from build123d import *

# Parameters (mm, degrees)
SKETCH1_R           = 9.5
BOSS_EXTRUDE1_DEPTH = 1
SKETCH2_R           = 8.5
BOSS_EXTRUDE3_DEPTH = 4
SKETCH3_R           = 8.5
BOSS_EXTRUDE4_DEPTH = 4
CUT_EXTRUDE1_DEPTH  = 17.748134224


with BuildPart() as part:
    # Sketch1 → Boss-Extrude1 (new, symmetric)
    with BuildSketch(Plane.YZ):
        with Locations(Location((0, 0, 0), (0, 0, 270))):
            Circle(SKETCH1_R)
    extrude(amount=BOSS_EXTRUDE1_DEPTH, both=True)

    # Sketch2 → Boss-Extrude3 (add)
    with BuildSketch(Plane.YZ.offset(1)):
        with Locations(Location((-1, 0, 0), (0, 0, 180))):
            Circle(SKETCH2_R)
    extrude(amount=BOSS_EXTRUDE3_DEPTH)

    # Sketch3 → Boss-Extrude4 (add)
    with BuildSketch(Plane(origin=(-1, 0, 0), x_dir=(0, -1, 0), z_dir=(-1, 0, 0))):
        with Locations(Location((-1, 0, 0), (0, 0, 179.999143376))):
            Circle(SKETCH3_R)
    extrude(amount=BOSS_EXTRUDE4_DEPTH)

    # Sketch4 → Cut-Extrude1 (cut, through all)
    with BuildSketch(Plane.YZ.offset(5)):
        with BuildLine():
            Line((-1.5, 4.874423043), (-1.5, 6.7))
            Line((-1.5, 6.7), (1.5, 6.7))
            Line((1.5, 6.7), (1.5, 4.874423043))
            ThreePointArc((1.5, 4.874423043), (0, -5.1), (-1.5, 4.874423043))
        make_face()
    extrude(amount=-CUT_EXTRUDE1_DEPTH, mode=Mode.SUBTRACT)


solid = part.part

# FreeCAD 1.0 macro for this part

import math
import FreeCAD as App
import Part
import Sketcher

doc = App.newDocument("Part")
body = doc.addObject("PartDesign::Body", "Body")

sketch1 = doc.addObject("Sketcher::SketchObject", "Sketch")
body.addObject(sketch1)
sketch1.AttachmentSupport = (doc.YZ_Plane, [""])
sketch1.MapMode = "FlatFace"
sketch1.addGeometry(Part.Circle(App.Vector(0, 0, 0), App.Vector(0, 0, 1), 9.5), False)
sketch1.addConstraint([
    Sketcher.Constraint("Coincident", 0, 3, -1, 1),
    Sketcher.Constraint("Diameter", 0, 19.0),
])
pad1 = doc.addObject("PartDesign::Pad", "Pad")
body.addObject(pad1)
pad1.Profile = sketch1
pad1.Length = 2
pad1.Midplane = True

sketch2 = doc.addObject("Sketcher::SketchObject", "Sketch001")
body.addObject(sketch2)
sketch2.AttachmentSupport = (doc.YZ_Plane, [""])
sketch2.MapMode = "FlatFace"
sketch2.AttachmentOffset = App.Placement(App.Vector(0, 0, 1), App.Rotation())
sketch2.addGeometry(Part.Circle(App.Vector(-1, 0, 0), App.Vector(0, 0, 1), 8.5), False)
sketch2.addConstraint([
    Sketcher.Constraint("PointOnObject", 0, 3, -1),
    Sketcher.Constraint("Diameter", 0, 17.0),
    Sketcher.Constraint("DistanceX", 0, 3, -1, 1, 1.0),
])
pad2 = doc.addObject("PartDesign::Pad", "Pad001")
body.addObject(pad2)
pad2.Profile = sketch2
pad2.Length = 4

sketch3 = doc.addObject("Sketcher::SketchObject", "Sketch002")
body.addObject(sketch3)
sketch3.AttachmentSupport = (doc.YZ_Plane, [""])
sketch3.MapMode = "FlatFace"
sketch3.AttachmentOffset = App.Placement(App.Vector(0, 0, -1), App.Rotation())
sketch3.addGeometry(Part.Circle(App.Vector(1, 0, 0), App.Vector(0, 0, 1), 8.5), False)
sketch3.addConstraint([
    Sketcher.Constraint("PointOnObject", 0, 3, -1),
    Sketcher.Constraint("Diameter", 0, 17.0),
    Sketcher.Constraint("DistanceX", -1, 1, 0, 3, 1.0),
])
pad3 = doc.addObject("PartDesign::Pad", "Pad002")
body.addObject(pad3)
pad3.Profile = sketch3
pad3.Length = 4
pad3.Reversed = True

sketch4 = doc.addObject("Sketcher::SketchObject", "Sketch003")
body.addObject(sketch4)
sketch4.AttachmentSupport = (doc.YZ_Plane, [""])
sketch4.MapMode = "FlatFace"
sketch4.AttachmentOffset = App.Placement(App.Vector(0, 0, 5), App.Rotation())
sketch4.addGeometry([
    Part.LineSegment(App.Vector(-1.5, 6.7, 0), App.Vector(-1.5, 4.874423, 0)),
    Part.ArcOfCircle(Part.Circle(App.Vector(0, 0, 0), App.Vector(0, 0, 1), 5.1), math.radians(107.104635), math.radians(432.895365)),
    Part.LineSegment(App.Vector(1.5, 4.874423, 0), App.Vector(1.5, 6.7, 0)),
    Part.LineSegment(App.Vector(1.5, 6.7, 0), App.Vector(-1.5, 6.7, 0)),
], False)
sketch4.addConstraint([
    Sketcher.Constraint("Coincident", 0, 2, 1, 1),
    Sketcher.Constraint("Coincident", 1, 2, 2, 1),
    Sketcher.Constraint("Coincident", 2, 2, 3, 1),
    Sketcher.Constraint("Coincident", 3, 2, 0, 1),
    Sketcher.Constraint("Vertical", 0),
    Sketcher.Constraint("Vertical", 2),
    Sketcher.Constraint("Horizontal", 3),
    Sketcher.Constraint("Coincident", 1, 3, -1, 1),
    Sketcher.Constraint("Horizontal", 0, 2, 1, 2),
    Sketcher.Constraint("Radius", 1, 5.1),
    Sketcher.Constraint("DistanceX", 3, 2, 3, 1, 3.0),
    Sketcher.Constraint("DistanceY", -1, 1, 2, 2, 6.7),
])
pocket1 = doc.addObject("PartDesign::Pocket", "Pocket")
body.addObject(pocket1)
pocket1.Profile = sketch4
pocket1.Type = "ThroughAll"

doc.recompute()
